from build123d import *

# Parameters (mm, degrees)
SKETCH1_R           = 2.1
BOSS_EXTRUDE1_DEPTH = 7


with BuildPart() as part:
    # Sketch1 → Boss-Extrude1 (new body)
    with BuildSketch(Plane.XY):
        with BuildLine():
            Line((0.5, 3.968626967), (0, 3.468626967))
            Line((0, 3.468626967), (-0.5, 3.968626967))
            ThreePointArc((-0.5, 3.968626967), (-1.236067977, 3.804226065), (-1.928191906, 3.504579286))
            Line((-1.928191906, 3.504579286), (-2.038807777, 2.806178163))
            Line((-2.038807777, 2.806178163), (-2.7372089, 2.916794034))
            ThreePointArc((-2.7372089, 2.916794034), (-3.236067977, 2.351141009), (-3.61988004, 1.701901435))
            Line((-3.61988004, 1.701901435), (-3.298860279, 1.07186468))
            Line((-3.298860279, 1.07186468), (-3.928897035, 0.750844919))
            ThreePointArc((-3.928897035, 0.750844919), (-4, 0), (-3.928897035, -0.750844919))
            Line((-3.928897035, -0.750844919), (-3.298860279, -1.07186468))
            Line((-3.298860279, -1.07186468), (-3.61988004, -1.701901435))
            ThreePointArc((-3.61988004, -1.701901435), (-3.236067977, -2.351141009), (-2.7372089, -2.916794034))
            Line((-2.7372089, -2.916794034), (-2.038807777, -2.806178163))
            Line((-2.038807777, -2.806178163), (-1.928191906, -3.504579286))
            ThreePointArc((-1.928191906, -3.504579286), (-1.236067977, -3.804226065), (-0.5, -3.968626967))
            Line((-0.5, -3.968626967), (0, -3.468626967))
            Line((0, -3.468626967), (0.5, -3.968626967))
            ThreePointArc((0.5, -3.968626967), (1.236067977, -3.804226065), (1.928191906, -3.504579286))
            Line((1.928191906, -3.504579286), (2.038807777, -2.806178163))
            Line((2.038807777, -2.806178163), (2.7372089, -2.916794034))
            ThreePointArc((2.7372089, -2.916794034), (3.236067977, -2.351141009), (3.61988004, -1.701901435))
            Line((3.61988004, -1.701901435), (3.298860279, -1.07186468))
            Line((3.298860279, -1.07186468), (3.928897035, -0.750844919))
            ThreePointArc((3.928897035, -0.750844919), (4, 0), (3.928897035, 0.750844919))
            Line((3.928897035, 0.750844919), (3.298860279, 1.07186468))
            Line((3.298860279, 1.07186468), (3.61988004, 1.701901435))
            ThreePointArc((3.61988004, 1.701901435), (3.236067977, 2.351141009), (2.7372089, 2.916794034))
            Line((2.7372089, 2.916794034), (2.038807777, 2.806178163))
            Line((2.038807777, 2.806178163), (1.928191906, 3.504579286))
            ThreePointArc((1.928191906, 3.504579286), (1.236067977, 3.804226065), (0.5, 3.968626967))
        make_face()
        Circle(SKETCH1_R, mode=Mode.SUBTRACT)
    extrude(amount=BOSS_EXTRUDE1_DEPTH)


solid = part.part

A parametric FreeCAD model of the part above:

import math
import FreeCAD as App
import Part
import Sketcher
from FreeCAD import Vector
Q = App.Units.Quantity

doc = App.newDocument("Part")
params = doc.addObject("Spreadsheet::Sheet", "Params")
for row, (alias, value) in enumerate([
    ("sketch1_radius", "4 mm"),
    ("sketch1_diameter", "4.2 mm"),
    ("pad1_length", "7 mm"),
], start=1):
    params.set(f"A{row}", alias)
    params.set(f"B{row}", "=" + value)
    params.setAlias(f"B{row}", alias)

body = doc.addObject("PartDesign::Body", "Body")

sketch1 = body.newObject("Sketcher::SketchObject", "Sketch")
sketch1.AttachmentSupport = (doc.getObject("XY_Plane"), [""])
sketch1.MapMode = "FlatFace"
sketch1.addGeometry([
    Part.LineSegment(Vector(0.5, 4, 0), Vector(0, 3.5, 0)),
    Part.LineSegment(Vector(0, 3.5, 0), Vector(-0.5, 4, 0)),
    Part.ArcOfCircle(Part.Circle(Vector(0, 0, 0), Vector(0, 0, 1), 4), math.radians(97), math.radians(119)),
    Part.LineSegment(Vector(-1.9, 3.5, 0), Vector(-2, 2.8, 0)),
    Part.LineSegment(Vector(-2, 2.8, 0), Vector(-2.7, 2.9, 0)),
    Part.ArcOfCircle(Part.Circle(Vector(0, 0, 0), Vector(0, 0, 1), 4), math.radians(133), math.radians(155)),
    Part.LineSegment(Vector(-3.6, 1.7, 0), Vector(-3.3, 1.1, 0)),
    Part.LineSegment(Vector(-3.3, 1.1, 0), Vector(-3.9, 0.8, 0)),
    Part.ArcOfCircle(Part.Circle(Vector(0, 0, 0), Vector(0, 0, 1), 4), math.radians(169), math.radians(191)),
    Part.LineSegment(Vector(-3.9, -0.8, 0), Vector(-3.3, -1.1, 0)),
    Part.LineSegment(Vector(-3.3, -1.1, 0), Vector(-3.6, -1.7, 0)),
    Part.ArcOfCircle(Part.Circle(Vector(0, 0, 0), Vector(0, 0, 1), 4), math.radians(-155), math.radians(-133)),
    Part.LineSegment(Vector(-2.7, -2.9, 0), Vector(-2, -2.8, 0)),
    Part.LineSegment(Vector(-2, -2.8, 0), Vector(-1.9, -3.5, 0)),
    Part.ArcOfCircle(Part.Circle(Vector(0, 0, 0), Vector(0, 0, 1), 4), math.radians(-119), math.radians(-97)),
    Part.LineSegment(Vector(-0.5, -4, 0), Vector(0, -3.5, 0)),
    Part.LineSegment(Vector(0, -3.5, 0), Vector(0.5, -4, 0)),
    Part.ArcOfCircle(Part.Circle(Vector(0, 0, 0), Vector(0, 0, 1), 4), math.radians(-83), math.radians(-61)),
    Part.LineSegment(Vector(1.9, -3.5, 0), Vector(2, -2.8, 0)),
    Part.LineSegment(Vector(2, -2.8, 0), Vector(2.7, -2.9, 0)),
    Part.ArcOfCircle(Part.Circle(Vector(0, 0, 0), Vector(0, 0, 1), 4), math.radians(-47), math.radians(-25)),
    Part.LineSegment(Vector(3.6, -1.7, 0), Vector(3.3, -1.1, 0)),
    Part.LineSegment(Vector(3.3, -1.1, 0), Vector(3.9, -0.8, 0)),
    Part.ArcOfCircle(Part.Circle(Vector(0, 0, 0), Vector(0, 0, 1), 4), math.radians(-11), math.radians(11)),
    Part.LineSegment(Vector(3.9, 0.8, 0), Vector(3.3, 1.1, 0)),
    Part.LineSegment(Vector(3.3, 1.1, 0), Vector(3.6, 1.7, 0)),
    Part.ArcOfCircle(Part.Circle(Vector(0, 0, 0), Vector(0, 0, 1), 4), math.radians(25), math.radians(47)),
    Part.LineSegment(Vector(2.7, 2.9, 0), Vector(2, 2.8, 0)),
    Part.LineSegment(Vector(2, 2.8, 0), Vector(1.9, 3.5, 0)),
    Part.ArcOfCircle(Part.Circle(Vector(0, 0, 0), Vector(0, 0, 1), 4), math.radians(61), math.radians(83)),
    Part.Circle(Vector(0, 0, 0), Vector(0, 0, 1), 2.1),
], False)
sketch1.addConstraint([
    Sketcher.Constraint("Coincident", 0, 2, 1, 1),
    Sketcher.Constraint("Coincident", 1, 2, 2, 1),
    Sketcher.Constraint("Coincident", 2, 2, 3, 1),
    Sketcher.Constraint("Coincident", 3, 2, 4, 1),
    Sketcher.Constraint("Coincident", 4, 2, 5, 1),
    Sketcher.Constraint("Coincident", 5, 2, 6, 1),
    Sketcher.Constraint("Coincident", 6, 2, 7, 1),
    Sketcher.Constraint("Coincident", 7, 2, 8, 1),
    Sketcher.Constraint("Coincident", 8, 2, 9, 1),
    Sketcher.Constraint("Coincident", 9, 2, 10, 1),
    Sketcher.Constraint("Coincident", 10, 2, 11, 1),
    Sketcher.Constraint("Coincident", 11, 2, 12, 1),
    Sketcher.Constraint("Coincident", 12, 2, 13, 1),
    Sketcher.Constraint("Coincident", 13, 2, 14, 1),
    Sketcher.Constraint("Coincident", 14, 2, 15, 1),
    Sketcher.Constraint("Coincident", 15, 2, 16, 1),
    Sketcher.Constraint("Coincident", 16, 2, 17, 1),
    Sketcher.Constraint("Coincident", 17, 2, 18, 1),
    Sketcher.Constraint("Coincident", 18, 2, 19, 1),
    Sketcher.Constraint("Coincident", 19, 2, 20, 1),
    Sketcher.Constraint("Coincident", 20, 2, 21, 1),
    Sketcher.Constraint("Coincident", 21, 2, 22, 1),
    Sketcher.Constraint("Coincident", 22, 2, 23, 1),
    Sketcher.Constraint("Coincident", 23, 2, 24, 1),
    Sketcher.Constraint("Coincident", 24, 2, 25, 1),
    Sketcher.Constraint("Coincident", 25, 2, 26, 1),
    Sketcher.Constraint("Coincident", 26, 2, 27, 1),
    Sketcher.Constraint("Coincident", 27, 2, 28, 1),
    Sketcher.Constraint("Coincident", 28, 2, 29, 1),
    Sketcher.Constraint("Coincident", 29, 2, 0, 1),
    Sketcher.Constraint("Coincident", 2, 3, -1, 1),
    Sketcher.Constraint("Coincident", 5, 3, -1, 1),
    Sketcher.Constraint("Coincident", 8, 3, -1, 1),
    Sketcher.Constraint("Coincident", 11, 3, -1, 1),
    Sketcher.Constraint("Coincident", 14, 3, -1, 1),
    Sketcher.Constraint("Coincident", 17, 3, -1, 1),
    Sketcher.Constraint("Coincident", 20, 3, -1, 1),
    Sketcher.Constraint("Coincident", 23, 3, -1, 1),
    Sketcher.Constraint("Coincident", 26, 3, -1, 1),
    Sketcher.Constraint("Coincident", 29, 3, -1, 1),
    Sketcher.Constraint("Coincident", 30, 3, -1, 1),
    Sketcher.Constraint("Equal", 2, 5),
    Sketcher.Constraint("Equal", 5, 8),
    Sketcher.Constraint("Equal", 8, 11),
    Sketcher.Constraint("Equal", 11, 14),
    Sketcher.Constraint("Equal", 14, 17),
    Sketcher.Constraint("Equal", 17, 20),
    Sketcher.Constraint("Equal", 20, 23),
    Sketcher.Constraint("Equal", 23, 26),
    Sketcher.Constraint("Equal", 26, 29),
    Sketcher.Constraint("Symmetric", 0, 2, 15, 2, -1, 1),
    Sketcher.Constraint("Symmetric", 3, 2, 18, 2, -1, 1),
    Sketcher.Constraint("Symmetric", 6, 2, 21, 2, -1, 1),
    Sketcher.Constraint("Symmetric", 9, 2, 24, 2, -1, 1),
    Sketcher.Constraint("Symmetric", 12, 2, 27, 2, -1, 1),
    Sketcher.Constraint("Symmetric", 12, 2, 18, 2, -2),
    Sketcher.Constraint("Symmetric", 9, 2, 21, 2, -2),
    Sketcher.Constraint("PointOnObject", 0, 2, -2),
    Sketcher.Constraint("Perpendicular", 0, 1),
    Sketcher.Constraint("Perpendicular", 3, 4),
    Sketcher.Constraint("Perpendicular", 6, 7),
    Sketcher.Constraint("Perpendicular", 9, 10),
    Sketcher.Constraint("Perpendicular", 12, 13),
    Sketcher.Constraint("Perpendicular", 1, 15),
    Sketcher.Constraint("Perpendicular", 15, 16),
    Sketcher.Constraint("Perpendicular", 4, 18),
    Sketcher.Constraint("Perpendicular", 18, 19),
    Sketcher.Constraint("Perpendicular", 7, 21),
    Sketcher.Constraint("Perpendicular", 21, 22),
    Sketcher.Constraint("Perpendicular", 10, 24),
    Sketcher.Constraint("Perpendicular", 24, 25),
    Sketcher.Constraint("Perpendicular", 13, 27),
    Sketcher.Constraint("Perpendicular", 27, 28),
    Sketcher.Constraint("Horizontal", 14, 2, 16, 2),
    Sketcher.Constraint("Horizontal", 13, 2, 17, 2),
    Sketcher.Constraint("Horizontal", 10, 2, 20, 2),
    Sketcher.Constraint("Equal", 1, 3),
    Sketcher.Constraint("Equal", 3, 4),
    Sketcher.Constraint("Equal", 4, 6),
    Sketcher.Constraint("Equal", 6, 7),
    Sketcher.Constraint("Radius", 2, Q("4 mm")),
    Sketcher.Constraint("Diameter", 30, Q("4.2 mm")),
    Sketcher.Constraint("Angle", 3, Q("-99 deg")),
    Sketcher.Constraint("Angle", 6, Q("-63 deg")),
    Sketcher.Constraint("DistanceX", 14, 2, 16, 2, Q("1 mm")),
])
sketch1.setExpression("Constraints[80]", "Params.sketch1_radius")
sketch1.setExpression("Constraints[81]", "Params.sketch1_diameter")
pad1 = body.newObject("PartDesign::Pad", "Pad")
pad1.Profile = sketch1
pad1.setExpression("Length", "Params.pad1_length")

doc.recompute()
